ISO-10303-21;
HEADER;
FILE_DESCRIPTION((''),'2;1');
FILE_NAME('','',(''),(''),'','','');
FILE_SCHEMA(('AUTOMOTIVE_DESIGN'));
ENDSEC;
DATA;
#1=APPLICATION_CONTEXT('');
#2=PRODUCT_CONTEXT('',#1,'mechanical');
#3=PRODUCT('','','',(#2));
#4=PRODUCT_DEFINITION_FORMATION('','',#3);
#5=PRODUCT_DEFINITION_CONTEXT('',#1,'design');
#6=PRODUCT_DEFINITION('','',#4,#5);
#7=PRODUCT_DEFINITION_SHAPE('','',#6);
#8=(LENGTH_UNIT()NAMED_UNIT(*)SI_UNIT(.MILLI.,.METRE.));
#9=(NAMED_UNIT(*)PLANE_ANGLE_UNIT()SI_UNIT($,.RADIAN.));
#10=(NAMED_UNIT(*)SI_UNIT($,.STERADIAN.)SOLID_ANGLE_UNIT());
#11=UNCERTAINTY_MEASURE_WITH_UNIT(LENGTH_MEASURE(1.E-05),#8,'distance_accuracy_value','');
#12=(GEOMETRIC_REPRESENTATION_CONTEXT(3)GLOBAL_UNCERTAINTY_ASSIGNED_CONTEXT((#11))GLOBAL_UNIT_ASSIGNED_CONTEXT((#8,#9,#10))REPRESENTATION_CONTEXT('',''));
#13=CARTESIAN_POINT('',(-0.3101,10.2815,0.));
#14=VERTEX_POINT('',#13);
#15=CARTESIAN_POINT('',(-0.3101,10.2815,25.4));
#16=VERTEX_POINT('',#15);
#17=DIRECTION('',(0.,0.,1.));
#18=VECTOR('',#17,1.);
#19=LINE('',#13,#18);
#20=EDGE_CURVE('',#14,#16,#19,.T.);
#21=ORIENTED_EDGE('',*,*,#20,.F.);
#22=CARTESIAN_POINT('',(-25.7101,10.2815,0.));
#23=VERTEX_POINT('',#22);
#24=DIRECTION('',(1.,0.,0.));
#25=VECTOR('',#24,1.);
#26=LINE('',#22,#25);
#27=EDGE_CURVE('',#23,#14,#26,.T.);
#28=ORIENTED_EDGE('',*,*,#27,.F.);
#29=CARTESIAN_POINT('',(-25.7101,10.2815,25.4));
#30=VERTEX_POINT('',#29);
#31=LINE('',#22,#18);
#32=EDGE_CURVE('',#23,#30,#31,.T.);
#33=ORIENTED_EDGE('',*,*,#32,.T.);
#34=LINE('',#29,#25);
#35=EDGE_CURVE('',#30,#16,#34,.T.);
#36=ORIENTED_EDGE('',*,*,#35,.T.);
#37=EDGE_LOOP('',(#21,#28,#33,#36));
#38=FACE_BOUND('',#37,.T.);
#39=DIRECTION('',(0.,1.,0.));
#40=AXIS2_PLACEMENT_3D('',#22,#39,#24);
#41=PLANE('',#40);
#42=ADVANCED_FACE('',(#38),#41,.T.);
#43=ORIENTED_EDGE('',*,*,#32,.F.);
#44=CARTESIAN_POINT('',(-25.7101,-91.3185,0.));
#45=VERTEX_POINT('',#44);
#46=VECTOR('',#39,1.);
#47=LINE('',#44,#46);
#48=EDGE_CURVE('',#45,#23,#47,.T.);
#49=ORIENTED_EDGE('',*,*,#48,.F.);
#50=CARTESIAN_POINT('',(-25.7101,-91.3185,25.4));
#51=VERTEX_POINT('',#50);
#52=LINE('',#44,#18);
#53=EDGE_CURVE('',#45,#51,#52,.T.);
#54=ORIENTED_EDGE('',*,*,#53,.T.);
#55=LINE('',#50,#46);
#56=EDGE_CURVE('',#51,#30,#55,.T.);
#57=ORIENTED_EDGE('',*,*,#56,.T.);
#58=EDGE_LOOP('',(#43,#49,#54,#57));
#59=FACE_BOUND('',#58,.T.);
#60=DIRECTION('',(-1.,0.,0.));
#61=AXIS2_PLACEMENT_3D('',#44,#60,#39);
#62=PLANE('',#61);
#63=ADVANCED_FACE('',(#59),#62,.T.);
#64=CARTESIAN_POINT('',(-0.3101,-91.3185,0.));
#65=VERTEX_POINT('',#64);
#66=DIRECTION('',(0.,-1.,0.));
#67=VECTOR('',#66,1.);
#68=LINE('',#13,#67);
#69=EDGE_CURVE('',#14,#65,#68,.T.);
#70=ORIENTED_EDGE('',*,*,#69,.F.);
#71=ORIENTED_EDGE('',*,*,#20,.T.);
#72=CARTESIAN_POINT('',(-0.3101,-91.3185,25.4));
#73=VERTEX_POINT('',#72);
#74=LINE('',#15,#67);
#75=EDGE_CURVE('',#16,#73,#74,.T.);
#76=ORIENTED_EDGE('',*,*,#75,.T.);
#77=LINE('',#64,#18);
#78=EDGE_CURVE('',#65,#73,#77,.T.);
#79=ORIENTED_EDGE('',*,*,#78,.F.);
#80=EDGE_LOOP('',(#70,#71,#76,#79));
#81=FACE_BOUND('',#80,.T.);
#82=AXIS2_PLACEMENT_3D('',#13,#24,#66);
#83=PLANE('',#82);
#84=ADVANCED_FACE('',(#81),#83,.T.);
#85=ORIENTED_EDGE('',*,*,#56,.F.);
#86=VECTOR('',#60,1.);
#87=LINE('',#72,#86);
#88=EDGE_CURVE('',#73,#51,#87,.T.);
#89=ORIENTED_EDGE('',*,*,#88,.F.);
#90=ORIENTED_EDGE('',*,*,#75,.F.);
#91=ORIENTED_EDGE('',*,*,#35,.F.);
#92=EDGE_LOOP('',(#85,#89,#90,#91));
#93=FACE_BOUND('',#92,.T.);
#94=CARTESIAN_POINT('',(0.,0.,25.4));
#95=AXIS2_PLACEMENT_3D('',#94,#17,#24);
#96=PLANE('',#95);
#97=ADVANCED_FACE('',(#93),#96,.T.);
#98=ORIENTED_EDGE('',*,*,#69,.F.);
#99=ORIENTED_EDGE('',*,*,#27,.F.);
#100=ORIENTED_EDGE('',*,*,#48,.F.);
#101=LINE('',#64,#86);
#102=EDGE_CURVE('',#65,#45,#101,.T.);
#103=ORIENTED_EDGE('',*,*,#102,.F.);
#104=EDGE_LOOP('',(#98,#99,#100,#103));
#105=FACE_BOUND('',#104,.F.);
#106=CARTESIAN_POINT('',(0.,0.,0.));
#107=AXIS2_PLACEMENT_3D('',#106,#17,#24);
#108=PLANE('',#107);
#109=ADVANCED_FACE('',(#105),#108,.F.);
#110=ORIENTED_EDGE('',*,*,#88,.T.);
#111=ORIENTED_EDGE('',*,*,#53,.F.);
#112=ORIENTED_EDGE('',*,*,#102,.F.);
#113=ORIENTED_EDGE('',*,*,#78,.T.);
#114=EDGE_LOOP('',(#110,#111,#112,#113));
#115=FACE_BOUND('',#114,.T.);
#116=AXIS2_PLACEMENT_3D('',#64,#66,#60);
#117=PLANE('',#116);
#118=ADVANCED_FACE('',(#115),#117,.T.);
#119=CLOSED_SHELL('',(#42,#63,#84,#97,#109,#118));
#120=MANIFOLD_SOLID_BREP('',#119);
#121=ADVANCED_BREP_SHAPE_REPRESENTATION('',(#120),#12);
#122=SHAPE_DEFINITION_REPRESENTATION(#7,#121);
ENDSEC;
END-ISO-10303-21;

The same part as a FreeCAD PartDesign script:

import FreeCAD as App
import Part
import Sketcher
Q = App.Units.Quantity


def add_polygon(sketch, points):
    """Adds a closed chain of lines whose ends are joined by coincident constraints."""
    first, n = sketch.GeometryCount, len(points)
    for a, b in zip(points, points[1:] + points[:1]):
        sketch.addGeometry(Part.LineSegment(App.Vector(*a, 0), App.Vector(*b, 0)), False)
    for i in range(n):
        sketch.addConstraint(Sketcher.Constraint("Coincident", first + i, 2, first + (i + 1) % n, 1))

doc = App.newDocument("Part")
body = doc.addObject("PartDesign::Body", "Body")

# Sketch on XY plane
sketch1 = doc.addObject("Sketcher::SketchObject", "Sketch")
body.addObject(sketch1)
sketch1.AttachmentSupport = (doc.XY_Plane, [""])
sketch1.MapMode = "FlatFace"
add_polygon(sketch1, [(0, 10), (-26, 10), (-26, -91), (0, -91)])  # lines 0-3
sketch1.addConstraint([
    Sketcher.Constraint("Horizontal", 0),
    Sketcher.Constraint("Vertical", 1),
    Sketcher.Constraint("Horizontal", 2),
    Sketcher.Constraint("Vertical", 3),
    Sketcher.Constraint("DistanceX", 0, 2, 0, 1, Q("1 in")),
    Sketcher.Constraint("DistanceY", 1, 2, 1, 1, Q("4 in")),
    Sketcher.Constraint("DistanceX", 0, 2, -1, 1, Q("1.0122 in")),
    Sketcher.Constraint("DistanceY", -1, 1, 0, 2, 10.2815),
])
pad1 = doc.addObject("PartDesign::Pad", "Pad")
body.addObject(pad1)
pad1.Profile = sketch1
pad1.Length = Q("1 in")

doc.recompute()
